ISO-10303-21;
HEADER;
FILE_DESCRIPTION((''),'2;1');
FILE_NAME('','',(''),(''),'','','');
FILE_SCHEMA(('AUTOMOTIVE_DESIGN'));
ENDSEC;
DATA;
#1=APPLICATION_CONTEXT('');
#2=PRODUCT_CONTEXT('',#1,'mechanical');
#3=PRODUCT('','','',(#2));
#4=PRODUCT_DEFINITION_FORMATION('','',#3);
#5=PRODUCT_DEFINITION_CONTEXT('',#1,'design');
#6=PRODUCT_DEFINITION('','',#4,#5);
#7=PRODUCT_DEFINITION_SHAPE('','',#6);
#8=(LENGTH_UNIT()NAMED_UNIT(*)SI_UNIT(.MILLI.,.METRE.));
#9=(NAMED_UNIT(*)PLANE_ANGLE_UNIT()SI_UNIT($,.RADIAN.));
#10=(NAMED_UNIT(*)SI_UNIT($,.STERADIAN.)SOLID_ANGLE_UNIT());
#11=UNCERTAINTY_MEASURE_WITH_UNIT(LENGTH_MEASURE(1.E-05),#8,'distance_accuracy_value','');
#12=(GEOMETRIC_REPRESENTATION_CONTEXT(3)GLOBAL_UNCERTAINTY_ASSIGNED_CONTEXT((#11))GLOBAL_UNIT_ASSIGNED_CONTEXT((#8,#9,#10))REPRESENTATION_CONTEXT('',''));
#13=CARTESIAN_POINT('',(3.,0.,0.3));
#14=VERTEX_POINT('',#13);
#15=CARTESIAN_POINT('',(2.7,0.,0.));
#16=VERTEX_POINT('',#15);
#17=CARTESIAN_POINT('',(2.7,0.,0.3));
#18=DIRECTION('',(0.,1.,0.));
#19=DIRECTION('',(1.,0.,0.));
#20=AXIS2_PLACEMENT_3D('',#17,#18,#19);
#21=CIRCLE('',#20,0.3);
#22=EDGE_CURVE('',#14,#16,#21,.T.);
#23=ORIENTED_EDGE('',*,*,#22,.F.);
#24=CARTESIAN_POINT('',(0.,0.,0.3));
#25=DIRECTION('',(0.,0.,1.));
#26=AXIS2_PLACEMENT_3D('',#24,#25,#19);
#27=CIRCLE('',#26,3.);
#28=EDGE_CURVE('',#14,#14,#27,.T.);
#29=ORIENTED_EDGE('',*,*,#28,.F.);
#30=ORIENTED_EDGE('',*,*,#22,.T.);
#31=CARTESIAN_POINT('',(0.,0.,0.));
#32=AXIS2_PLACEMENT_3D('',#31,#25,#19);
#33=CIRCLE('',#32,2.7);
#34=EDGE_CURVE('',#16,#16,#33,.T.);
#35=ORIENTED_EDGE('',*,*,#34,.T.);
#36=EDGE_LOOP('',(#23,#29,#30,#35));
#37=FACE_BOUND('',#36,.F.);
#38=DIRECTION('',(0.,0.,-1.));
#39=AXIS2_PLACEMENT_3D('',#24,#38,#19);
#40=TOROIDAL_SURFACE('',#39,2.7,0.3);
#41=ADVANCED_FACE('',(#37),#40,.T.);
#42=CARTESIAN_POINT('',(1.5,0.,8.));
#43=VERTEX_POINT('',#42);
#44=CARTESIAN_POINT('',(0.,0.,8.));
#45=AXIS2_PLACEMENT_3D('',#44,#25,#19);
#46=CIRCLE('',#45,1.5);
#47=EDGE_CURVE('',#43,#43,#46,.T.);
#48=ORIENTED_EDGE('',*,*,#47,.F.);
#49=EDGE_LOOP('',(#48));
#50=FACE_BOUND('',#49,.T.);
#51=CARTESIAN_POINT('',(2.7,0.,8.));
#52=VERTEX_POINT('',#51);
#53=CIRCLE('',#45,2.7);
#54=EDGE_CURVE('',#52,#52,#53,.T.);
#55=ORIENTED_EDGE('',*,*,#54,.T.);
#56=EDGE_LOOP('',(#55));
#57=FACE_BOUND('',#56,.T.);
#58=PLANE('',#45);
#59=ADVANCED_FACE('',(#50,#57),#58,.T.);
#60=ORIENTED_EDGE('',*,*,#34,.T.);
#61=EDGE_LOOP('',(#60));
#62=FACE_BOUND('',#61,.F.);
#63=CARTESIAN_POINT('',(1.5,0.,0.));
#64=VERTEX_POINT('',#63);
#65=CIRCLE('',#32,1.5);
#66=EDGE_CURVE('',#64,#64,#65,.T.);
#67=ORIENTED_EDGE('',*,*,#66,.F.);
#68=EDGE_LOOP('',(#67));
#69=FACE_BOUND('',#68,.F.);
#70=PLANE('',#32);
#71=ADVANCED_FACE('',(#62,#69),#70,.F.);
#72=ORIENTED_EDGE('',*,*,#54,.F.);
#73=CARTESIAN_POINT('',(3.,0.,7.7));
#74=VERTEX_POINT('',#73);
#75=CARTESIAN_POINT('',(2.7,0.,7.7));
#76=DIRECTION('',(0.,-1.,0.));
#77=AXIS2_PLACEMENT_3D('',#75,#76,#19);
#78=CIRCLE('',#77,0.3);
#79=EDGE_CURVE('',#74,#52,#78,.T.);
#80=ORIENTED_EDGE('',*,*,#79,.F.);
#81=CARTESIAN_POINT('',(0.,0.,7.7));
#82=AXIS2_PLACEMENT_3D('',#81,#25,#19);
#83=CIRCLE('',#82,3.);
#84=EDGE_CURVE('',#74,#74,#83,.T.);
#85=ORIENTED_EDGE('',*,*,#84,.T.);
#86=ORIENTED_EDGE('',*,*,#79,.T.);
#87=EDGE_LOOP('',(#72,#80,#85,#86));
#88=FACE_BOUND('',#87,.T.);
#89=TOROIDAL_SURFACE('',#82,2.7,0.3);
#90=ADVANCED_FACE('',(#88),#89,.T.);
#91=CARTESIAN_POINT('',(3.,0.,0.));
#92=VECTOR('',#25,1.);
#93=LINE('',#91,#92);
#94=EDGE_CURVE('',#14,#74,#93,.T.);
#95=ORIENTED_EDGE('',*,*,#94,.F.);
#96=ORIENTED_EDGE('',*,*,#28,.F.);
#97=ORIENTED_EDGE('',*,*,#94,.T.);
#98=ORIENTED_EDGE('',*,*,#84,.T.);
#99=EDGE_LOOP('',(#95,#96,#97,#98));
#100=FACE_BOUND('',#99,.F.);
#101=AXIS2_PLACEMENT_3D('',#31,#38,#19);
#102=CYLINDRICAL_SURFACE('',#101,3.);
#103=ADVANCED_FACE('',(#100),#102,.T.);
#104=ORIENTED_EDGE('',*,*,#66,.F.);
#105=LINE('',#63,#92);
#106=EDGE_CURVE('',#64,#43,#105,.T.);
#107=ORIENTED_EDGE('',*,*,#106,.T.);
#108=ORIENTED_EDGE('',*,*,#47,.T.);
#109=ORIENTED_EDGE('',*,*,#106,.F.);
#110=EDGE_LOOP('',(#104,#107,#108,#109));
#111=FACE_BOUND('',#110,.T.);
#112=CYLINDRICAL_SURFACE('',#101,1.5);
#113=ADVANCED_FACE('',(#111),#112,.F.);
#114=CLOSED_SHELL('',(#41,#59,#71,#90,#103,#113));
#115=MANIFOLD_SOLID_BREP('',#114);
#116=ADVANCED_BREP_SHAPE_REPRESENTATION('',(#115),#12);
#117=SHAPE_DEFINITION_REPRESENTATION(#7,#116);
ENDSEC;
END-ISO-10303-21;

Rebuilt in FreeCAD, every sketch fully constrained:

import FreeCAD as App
import Part
import Sketcher
Q = App.Units.Quantity


def edges_at(feature, points):
    """Names of the edges that pass closest to the given points."""
    edges = feature.Shape.Edges
    near = lambda p: min(range(len(edges)), key=lambda i: edges[i].distToShape(Part.Vertex(*p))[0])
    return sorted({f"Edge{near(p) + 1}" for p in points})

doc = App.newDocument("Part")
body = doc.addObject("PartDesign::Body", "Body")

sketch1 = body.newObject("Sketcher::SketchObject", "Sketch")
sketch1.AttachmentSupport = (doc.getObject("XY_Plane"), [""])
sketch1.MapMode = "FlatFace"
sketch1.addGeometry([
    Part.Circle(App.Vector(0, 0, 0), App.Vector(0, 0, 1), 3),
    Part.Circle(App.Vector(0, 0, 0), App.Vector(0, 0, 1), 1.5),
], False)
sketch1.addConstraint([
    Sketcher.Constraint("Coincident", 0, 3, -1, 1),
    Sketcher.Constraint("Coincident", 1, 3, -1, 1),
    Sketcher.Constraint("Diameter", 0, Q("6 mm")),
    Sketcher.Constraint("Diameter", 1, Q("3 mm")),
])
pad1 = body.newObject("PartDesign::Pad", "Pad")
pad1.Profile = sketch1
pad1.Length = 8
doc.recompute()

fillet = body.newObject("PartDesign::Fillet", "Fillet")
fillet.Base = (pad1, edges_at(pad1, [(-3, 0, 8), (-3, 0, 0)]))
fillet.Radius = 0.3

doc.recompute()
